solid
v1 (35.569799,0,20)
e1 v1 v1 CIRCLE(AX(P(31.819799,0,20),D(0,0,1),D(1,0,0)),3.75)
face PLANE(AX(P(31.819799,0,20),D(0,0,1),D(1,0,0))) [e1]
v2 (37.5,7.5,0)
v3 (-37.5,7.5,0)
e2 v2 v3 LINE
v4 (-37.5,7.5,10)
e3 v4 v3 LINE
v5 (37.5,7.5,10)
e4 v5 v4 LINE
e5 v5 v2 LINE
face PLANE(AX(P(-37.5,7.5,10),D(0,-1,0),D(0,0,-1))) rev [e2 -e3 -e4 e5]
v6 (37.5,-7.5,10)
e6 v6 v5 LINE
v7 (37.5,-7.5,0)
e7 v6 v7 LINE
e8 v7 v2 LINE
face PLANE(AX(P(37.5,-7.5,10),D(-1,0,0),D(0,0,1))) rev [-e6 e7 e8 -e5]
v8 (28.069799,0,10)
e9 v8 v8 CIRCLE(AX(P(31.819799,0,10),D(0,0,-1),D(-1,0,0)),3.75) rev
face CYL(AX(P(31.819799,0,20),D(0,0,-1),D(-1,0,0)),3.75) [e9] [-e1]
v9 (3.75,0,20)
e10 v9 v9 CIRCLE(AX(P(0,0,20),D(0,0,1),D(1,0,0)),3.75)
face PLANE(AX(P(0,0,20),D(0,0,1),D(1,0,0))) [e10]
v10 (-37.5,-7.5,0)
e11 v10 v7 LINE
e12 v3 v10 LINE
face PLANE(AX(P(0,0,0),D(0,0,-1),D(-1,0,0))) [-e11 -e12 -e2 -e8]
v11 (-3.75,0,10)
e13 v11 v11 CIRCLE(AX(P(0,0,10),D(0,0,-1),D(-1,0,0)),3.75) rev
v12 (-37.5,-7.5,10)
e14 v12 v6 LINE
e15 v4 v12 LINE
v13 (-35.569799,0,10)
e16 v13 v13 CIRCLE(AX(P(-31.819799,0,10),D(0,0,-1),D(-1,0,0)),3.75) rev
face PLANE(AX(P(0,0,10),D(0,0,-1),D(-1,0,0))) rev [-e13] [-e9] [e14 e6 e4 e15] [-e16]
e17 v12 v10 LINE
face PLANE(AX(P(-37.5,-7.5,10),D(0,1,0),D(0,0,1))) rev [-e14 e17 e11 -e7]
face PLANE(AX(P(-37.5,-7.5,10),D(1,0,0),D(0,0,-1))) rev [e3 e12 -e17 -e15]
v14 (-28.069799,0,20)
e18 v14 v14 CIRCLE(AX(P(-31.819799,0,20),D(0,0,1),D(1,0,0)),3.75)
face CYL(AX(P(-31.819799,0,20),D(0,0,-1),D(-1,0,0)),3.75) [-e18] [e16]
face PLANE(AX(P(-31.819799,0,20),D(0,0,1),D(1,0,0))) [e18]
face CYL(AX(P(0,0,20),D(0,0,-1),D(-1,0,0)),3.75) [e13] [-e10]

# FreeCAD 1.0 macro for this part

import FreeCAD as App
import Part
import Sketcher
Q = App.Units.Quantity


def add_polygon(sketch, points):
    """Adds a closed chain of lines whose ends are joined by coincident constraints."""
    first, n = sketch.GeometryCount, len(points)
    for a, b in zip(points, points[1:] + points[:1]):
        sketch.addGeometry(Part.LineSegment(App.Vector(*a, 0), App.Vector(*b, 0)), False)
    for i in range(n):
        sketch.addConstraint(Sketcher.Constraint("Coincident", first + i, 2, first + (i + 1) % n, 1))

doc = App.newDocument("Part")
body = doc.addObject("PartDesign::Body", "Body")

# Sketch on XY plane
sketch1 = body.newObject("Sketcher::SketchObject", "Sketch")
sketch1.AttachmentSupport = (doc.getObject("XY_Plane"), [""])
sketch1.MapMode = "FlatFace"
add_polygon(sketch1, [(-37.5, 7.5), (-37.5, -7.5), (37.5, -7.5), (37.5, 7.5)])  # lines 0-3
sketch1.addConstraint([
    Sketcher.Constraint("Vertical", 0),
    Sketcher.Constraint("Horizontal", 1),
    Sketcher.Constraint("Vertical", 2),
    Sketcher.Constraint("Horizontal", 3),
    Sketcher.Constraint("Symmetric", 0, 2, 2, 2, -1, 1),
    Sketcher.Constraint("DistanceX", 1, 1, 1, 2, Q("75 mm")),
    Sketcher.Constraint("DistanceY", 0, 2, 0, 1, Q("15 mm")),
])
pad1 = body.newObject("PartDesign::Pad", "Pad")
pad1.Profile = sketch1
pad1.Length = 10

# Sketch on XY plane
sketch2 = body.newObject("Sketcher::SketchObject", "Sketch001")
sketch2.AttachmentSupport = (doc.getObject("XY_Plane"), [""])
sketch2.MapMode = "FlatFace"
sketch2.AttachmentOffset = App.Placement(App.Vector(0, 0, 10), App.Rotation())
sketch2.addGeometry([
    Part.Circle(App.Vector(0, 0, 0), App.Vector(0, 0, 1), 3.75),
    Part.Circle(App.Vector(-31.819799, 0, 0), App.Vector(0, 0, 1), 3.75),
    Part.Circle(App.Vector(31.819799, 0, 0), App.Vector(0, 0, 1), 3.75),
], False)
sketch2.addConstraint([
    Sketcher.Constraint("Coincident", 0, 3, -1, 1),
    Sketcher.Constraint("Equal", 0, 1),
    Sketcher.Constraint("Equal", 1, 2),
    Sketcher.Constraint("Symmetric", 1, 3, 2, 3, -1, 1),
    Sketcher.Constraint("PointOnObject", 1, 3, -1),
    Sketcher.Constraint("Diameter", 0, Q("7.5 mm")),
    Sketcher.Constraint("DistanceX", 1, 3, -1, 1, Q("31.819799 mm")),
])
pad2 = body.newObject("PartDesign::Pad", "Pad001")
pad2.Profile = sketch2
pad2.Length = 10

doc.recompute()
